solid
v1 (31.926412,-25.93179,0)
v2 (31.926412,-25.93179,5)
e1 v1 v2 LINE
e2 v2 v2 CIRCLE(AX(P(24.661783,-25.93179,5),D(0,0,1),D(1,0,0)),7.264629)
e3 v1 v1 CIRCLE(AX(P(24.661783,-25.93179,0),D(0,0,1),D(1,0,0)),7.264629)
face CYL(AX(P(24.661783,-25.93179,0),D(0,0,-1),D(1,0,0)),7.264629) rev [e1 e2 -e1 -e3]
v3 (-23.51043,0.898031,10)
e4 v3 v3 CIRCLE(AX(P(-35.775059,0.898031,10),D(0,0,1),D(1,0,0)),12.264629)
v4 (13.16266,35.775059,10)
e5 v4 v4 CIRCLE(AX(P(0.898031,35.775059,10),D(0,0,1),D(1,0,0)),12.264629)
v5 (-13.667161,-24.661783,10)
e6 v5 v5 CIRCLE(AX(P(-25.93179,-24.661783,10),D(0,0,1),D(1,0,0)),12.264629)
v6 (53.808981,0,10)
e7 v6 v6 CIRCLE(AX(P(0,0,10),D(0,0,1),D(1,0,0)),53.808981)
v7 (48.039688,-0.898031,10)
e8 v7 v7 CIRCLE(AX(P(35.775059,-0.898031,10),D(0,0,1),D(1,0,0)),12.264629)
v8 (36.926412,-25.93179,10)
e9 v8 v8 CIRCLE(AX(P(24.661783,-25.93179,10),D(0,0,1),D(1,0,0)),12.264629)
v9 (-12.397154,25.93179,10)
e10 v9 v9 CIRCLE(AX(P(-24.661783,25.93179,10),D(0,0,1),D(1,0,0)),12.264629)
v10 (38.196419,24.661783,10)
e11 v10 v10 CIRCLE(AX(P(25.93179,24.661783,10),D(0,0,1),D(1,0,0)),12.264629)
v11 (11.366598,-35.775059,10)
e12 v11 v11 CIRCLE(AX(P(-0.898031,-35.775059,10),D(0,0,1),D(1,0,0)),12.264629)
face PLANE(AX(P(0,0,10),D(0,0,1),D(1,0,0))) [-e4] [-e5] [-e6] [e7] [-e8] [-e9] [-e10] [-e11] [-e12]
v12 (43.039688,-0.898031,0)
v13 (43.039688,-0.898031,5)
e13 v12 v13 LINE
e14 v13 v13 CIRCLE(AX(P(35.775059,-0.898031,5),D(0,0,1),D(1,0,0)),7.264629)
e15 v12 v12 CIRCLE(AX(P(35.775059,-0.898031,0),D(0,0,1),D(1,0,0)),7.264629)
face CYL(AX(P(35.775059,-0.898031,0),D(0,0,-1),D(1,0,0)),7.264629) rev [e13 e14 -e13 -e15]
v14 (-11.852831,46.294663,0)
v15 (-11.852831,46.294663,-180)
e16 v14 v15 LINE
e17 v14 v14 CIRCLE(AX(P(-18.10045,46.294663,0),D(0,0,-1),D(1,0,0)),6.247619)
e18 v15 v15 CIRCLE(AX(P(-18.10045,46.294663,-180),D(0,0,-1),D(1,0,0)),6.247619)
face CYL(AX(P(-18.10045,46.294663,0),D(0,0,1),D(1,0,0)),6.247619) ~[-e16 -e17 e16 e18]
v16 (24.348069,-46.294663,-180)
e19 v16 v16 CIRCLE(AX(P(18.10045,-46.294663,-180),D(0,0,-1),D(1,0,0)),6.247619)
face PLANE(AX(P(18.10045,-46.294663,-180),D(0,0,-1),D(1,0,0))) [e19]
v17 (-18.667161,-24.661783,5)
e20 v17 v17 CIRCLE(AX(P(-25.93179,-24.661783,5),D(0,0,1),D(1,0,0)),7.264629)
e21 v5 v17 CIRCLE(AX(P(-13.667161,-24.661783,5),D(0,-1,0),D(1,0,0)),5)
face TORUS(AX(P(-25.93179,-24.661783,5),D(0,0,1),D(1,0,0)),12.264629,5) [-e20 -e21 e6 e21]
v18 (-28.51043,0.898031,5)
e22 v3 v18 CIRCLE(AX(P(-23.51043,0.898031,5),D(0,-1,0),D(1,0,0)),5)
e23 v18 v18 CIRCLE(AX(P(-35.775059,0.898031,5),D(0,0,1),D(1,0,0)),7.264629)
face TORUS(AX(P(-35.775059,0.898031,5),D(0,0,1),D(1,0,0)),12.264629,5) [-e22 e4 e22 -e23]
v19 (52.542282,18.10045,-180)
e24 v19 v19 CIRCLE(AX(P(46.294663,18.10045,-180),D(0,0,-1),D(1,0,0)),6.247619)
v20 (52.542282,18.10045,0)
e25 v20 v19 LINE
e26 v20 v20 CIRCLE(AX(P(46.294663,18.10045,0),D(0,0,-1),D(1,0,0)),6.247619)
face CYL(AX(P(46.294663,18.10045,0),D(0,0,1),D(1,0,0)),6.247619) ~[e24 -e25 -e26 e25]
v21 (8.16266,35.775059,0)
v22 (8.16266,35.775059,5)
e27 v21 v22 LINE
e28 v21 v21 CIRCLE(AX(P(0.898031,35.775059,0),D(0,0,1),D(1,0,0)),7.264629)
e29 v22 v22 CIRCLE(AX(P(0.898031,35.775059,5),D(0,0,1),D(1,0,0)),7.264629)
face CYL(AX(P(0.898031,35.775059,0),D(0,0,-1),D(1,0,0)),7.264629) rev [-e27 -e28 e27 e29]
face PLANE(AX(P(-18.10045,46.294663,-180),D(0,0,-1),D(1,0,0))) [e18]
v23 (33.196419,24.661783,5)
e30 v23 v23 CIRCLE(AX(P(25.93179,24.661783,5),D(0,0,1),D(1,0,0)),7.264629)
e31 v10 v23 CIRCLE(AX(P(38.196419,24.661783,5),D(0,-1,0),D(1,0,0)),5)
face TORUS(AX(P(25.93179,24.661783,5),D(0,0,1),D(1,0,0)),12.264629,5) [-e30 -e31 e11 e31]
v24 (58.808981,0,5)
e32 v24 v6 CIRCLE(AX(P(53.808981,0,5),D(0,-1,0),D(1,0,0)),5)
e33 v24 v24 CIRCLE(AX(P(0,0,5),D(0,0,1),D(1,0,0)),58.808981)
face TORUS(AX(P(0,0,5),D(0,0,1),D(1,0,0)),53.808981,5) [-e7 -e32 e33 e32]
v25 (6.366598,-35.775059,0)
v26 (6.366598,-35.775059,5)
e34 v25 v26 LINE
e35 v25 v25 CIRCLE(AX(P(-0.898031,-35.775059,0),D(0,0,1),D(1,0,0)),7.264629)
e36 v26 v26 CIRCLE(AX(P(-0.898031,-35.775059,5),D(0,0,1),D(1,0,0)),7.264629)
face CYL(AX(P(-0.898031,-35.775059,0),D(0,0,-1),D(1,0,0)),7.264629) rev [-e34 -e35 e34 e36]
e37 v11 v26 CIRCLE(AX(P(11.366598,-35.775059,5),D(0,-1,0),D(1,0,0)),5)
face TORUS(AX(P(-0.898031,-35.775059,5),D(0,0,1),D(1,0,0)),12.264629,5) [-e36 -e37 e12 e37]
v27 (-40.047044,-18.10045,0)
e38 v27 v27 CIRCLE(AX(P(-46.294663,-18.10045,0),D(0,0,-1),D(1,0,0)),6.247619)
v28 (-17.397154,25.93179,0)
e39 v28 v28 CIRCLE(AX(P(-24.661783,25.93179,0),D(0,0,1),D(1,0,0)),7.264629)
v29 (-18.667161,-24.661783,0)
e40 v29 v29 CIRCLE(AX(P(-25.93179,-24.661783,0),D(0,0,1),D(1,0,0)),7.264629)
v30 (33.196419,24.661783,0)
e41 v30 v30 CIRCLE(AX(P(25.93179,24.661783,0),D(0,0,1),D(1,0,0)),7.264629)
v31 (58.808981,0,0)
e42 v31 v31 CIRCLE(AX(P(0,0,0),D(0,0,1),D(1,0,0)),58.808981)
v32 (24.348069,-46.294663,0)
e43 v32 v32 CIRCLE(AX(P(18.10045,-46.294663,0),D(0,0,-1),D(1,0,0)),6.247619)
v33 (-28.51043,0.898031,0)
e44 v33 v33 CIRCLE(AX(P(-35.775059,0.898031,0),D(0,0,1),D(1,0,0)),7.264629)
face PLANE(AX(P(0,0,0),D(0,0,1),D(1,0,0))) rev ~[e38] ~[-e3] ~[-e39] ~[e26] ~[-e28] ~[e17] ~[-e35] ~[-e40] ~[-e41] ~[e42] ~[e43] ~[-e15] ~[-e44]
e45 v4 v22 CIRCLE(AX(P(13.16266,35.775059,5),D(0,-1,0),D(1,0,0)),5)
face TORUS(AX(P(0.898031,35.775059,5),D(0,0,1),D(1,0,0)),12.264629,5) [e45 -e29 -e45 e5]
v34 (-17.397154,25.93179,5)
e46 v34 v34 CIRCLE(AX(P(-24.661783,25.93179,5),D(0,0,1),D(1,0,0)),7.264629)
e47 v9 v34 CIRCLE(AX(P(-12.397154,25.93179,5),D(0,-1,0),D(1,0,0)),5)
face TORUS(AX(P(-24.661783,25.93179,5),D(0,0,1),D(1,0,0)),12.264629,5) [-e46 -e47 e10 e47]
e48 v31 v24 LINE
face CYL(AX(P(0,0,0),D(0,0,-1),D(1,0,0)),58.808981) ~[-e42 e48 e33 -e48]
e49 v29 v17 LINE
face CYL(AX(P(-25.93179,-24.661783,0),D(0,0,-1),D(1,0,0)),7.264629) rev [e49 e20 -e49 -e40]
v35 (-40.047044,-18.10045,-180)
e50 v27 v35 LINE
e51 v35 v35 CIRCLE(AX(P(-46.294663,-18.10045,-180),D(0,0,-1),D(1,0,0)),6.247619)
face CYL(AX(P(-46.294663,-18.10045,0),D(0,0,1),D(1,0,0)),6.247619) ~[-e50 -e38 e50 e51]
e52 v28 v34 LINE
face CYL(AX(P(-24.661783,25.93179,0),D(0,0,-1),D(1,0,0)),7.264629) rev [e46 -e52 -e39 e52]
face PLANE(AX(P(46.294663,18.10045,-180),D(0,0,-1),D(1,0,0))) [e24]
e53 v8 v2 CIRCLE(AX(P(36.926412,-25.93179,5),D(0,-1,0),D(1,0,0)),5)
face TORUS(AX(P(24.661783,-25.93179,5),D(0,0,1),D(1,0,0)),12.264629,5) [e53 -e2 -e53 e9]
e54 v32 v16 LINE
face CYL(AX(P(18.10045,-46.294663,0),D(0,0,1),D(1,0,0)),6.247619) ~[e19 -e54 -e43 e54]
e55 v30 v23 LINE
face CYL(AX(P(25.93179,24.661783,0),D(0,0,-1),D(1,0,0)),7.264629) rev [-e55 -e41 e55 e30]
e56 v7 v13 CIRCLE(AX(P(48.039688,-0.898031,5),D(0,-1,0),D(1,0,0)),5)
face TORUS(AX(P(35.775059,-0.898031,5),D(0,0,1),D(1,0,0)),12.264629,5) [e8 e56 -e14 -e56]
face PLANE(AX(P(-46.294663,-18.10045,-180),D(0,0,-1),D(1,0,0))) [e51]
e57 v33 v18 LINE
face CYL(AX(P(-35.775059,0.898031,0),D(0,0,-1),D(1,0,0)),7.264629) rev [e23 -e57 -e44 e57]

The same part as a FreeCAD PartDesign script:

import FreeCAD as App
import Part
import Sketcher

V = App.Vector
Q = App.Units.Quantity


def edges_at(feature, points):
    """Names of the edges that pass closest to the given points."""
    edges = feature.Shape.Edges
    near = lambda p: min(range(len(edges)), key=lambda i: edges[i].distToShape(Part.Vertex(*p))[0])
    return sorted({f"Edge{near(p) + 1}" for p in points})

doc = App.newDocument("Part")
body = doc.addObject("PartDesign::Body", "Body")

# Sketch on XY plane
sketch1 = body.newObject("Sketcher::SketchObject", "Sketch")
sketch1.AttachmentSupport = (doc.getObject("XY_Plane"), [""])
sketch1.MapMode = "FlatFace"
sketch1.addGeometry(Part.Circle(V(0, 0, 0), V(0, 0, 1), 59), False)
sketch1.addGeometry(Part.Circle(V(-26, -25, 0), V(0, 0, 1), 7), False)
sketch1.addGeometry(Part.Circle(V(-1, -36, 0), V(0, 0, 1), 7), False)
sketch1.addGeometry(Part.Circle(V(25, -26, 0), V(0, 0, 1), 7), False)
sketch1.addGeometry(Part.Circle(V(36, -1, 0), V(0, 0, 1), 7), False)
sketch1.addGeometry(Part.Circle(V(-36, 1, 0), V(0, 0, 1), 7), False)
sketch1.addGeometry(Part.Circle(V(-25, 26, 0), V(0, 0, 1), 7), False)
sketch1.addGeometry(Part.Circle(V(1, 36, 0), V(0, 0, 1), 7), False)
sketch1.addGeometry(Part.Circle(V(26, 25, 0), V(0, 0, 1), 7), False)
sketch1.addConstraint(Sketcher.Constraint("Coincident", 0, 3, -1, 1))
sketch1.addConstraint(Sketcher.Constraint("Equal", 1, 2))
sketch1.addConstraint(Sketcher.Constraint("Equal", 2, 3))
sketch1.addConstraint(Sketcher.Constraint("Equal", 3, 4))
sketch1.addConstraint(Sketcher.Constraint("Equal", 4, 5))
sketch1.addConstraint(Sketcher.Constraint("Equal", 5, 6))
sketch1.addConstraint(Sketcher.Constraint("Equal", 6, 7))
sketch1.addConstraint(Sketcher.Constraint("Equal", 7, 8))
sketch1.addConstraint(Sketcher.Constraint("Symmetric", 4, 3, 5, 3, -1, 1))
sketch1.addConstraint(Sketcher.Constraint("Symmetric", 3, 3, 6, 3, -1, 1))
sketch1.addConstraint(Sketcher.Constraint("Symmetric", 2, 3, 7, 3, -1, 1))
sketch1.addConstraint(Sketcher.Constraint("Symmetric", 1, 3, 8, 3, -1, 1))
sketch1.addConstraint(Sketcher.Constraint("Diameter", 0, Q("117.617962 mm")))
sketch1.addConstraint(Sketcher.Constraint("Diameter", 1, Q("14.529258 mm")))
sketch1.addConstraint(Sketcher.Constraint("DistanceX", 1, 3, -1, 1, Q("25.93179 mm")))
sketch1.addConstraint(Sketcher.Constraint("DistanceX", 2, 3, -1, 1, Q("0.898031 mm")))
sketch1.addConstraint(Sketcher.Constraint("DistanceY", 2, 3, -1, 1, Q("35.775059 mm")))
sketch1.addConstraint(Sketcher.Constraint("DistanceY", 3, 3, -1, 1, Q("25.93179 mm")))
sketch1.addConstraint(Sketcher.Constraint("DistanceX", -1, 1, 4, 3, Q("35.775059 mm")))
sketch1.addConstraint(Sketcher.Constraint("DistanceY", 4, 3, -1, 1, Q("0.898031 mm")))
sketch1.addConstraint(Sketcher.Constraint("DistanceY", 1, 3, 4, 3, Q("23.763752 mm")))
sketch1.addConstraint(Sketcher.Constraint("DistanceX", 6, 3, 2, 3, Q("23.763752 mm")))
pad1 = body.newObject("PartDesign::Pad", "Pad")
pad1.Profile = sketch1
pad1.Length = 10
doc.recompute()

fillet = body.newObject("PartDesign::Fillet", "Fillet")
fillet.Base = (pad1, edges_at(pad1, [(-58.809, 0, 10)]))
fillet.Radius = 5

# Sketch on XY plane
sketch2 = body.newObject("Sketcher::SketchObject", "Sketch001")
sketch2.AttachmentSupport = (doc.getObject("XY_Plane"), [""])
sketch2.MapMode = "FlatFace"
sketch2.addGeometry(Part.Circle(V(18, -46, 0), V(0, 0, 1), 6), False)
sketch2.addGeometry(Part.Circle(V(-46, -18, 0), V(0, 0, 1), 6), False)
sketch2.addGeometry(Part.Circle(V(-18, 46, 0), V(0, 0, 1), 6), False)
sketch2.addGeometry(Part.Circle(V(46, 18, 0), V(0, 0, 1), 6), False)
sketch2.addConstraint(Sketcher.Constraint("Equal", 0, 1))
sketch2.addConstraint(Sketcher.Constraint("Equal", 1, 2))
sketch2.addConstraint(Sketcher.Constraint("Equal", 2, 3))
sketch2.addConstraint(Sketcher.Constraint("Symmetric", 0, 3, 2, 3, -1, 1))
sketch2.addConstraint(Sketcher.Constraint("Symmetric", 1, 3, 3, 3, -1, 1))
sketch2.addConstraint(Sketcher.Constraint("Diameter", 0, Q("12.495238 mm")))
sketch2.addConstraint(Sketcher.Constraint("DistanceX", 2, 3, 0, 3, Q("36.2009 mm")))
sketch2.addConstraint(Sketcher.Constraint("DistanceY", 1, 3, 3, 3, Q("36.2009 mm")))
sketch2.addConstraint(Sketcher.Constraint("DistanceY", 0, 3, -1, 1, Q("46.294663 mm")))
sketch2.addConstraint(Sketcher.Constraint("DistanceX", 1, 3, -1, 1, Q("46.294663 mm")))
pad2 = body.newObject("PartDesign::Pad", "Pad001")
pad2.Profile = sketch2
pad2.Length = 180
pad2.Reversed = True
doc.recompute()

fillet2 = body.newObject("PartDesign::Fillet", "Fillet001")
fillet2.Base = (pad2, edges_at(pad2, [
    (-53.809, 0, 10),
    (-8.163, -35.775, 10),
    (-33.196, -24.662, 10),
    (17.397, -25.932, 10),
    (28.51, -0.898, 10),
    (-43.04, 0.898, 10),
    (-31.926, 25.932, 10),
    (18.667, 24.662, 10),
    (-6.367, 35.775, 10),
]))
fillet2.Radius = 5

doc.recompute()
